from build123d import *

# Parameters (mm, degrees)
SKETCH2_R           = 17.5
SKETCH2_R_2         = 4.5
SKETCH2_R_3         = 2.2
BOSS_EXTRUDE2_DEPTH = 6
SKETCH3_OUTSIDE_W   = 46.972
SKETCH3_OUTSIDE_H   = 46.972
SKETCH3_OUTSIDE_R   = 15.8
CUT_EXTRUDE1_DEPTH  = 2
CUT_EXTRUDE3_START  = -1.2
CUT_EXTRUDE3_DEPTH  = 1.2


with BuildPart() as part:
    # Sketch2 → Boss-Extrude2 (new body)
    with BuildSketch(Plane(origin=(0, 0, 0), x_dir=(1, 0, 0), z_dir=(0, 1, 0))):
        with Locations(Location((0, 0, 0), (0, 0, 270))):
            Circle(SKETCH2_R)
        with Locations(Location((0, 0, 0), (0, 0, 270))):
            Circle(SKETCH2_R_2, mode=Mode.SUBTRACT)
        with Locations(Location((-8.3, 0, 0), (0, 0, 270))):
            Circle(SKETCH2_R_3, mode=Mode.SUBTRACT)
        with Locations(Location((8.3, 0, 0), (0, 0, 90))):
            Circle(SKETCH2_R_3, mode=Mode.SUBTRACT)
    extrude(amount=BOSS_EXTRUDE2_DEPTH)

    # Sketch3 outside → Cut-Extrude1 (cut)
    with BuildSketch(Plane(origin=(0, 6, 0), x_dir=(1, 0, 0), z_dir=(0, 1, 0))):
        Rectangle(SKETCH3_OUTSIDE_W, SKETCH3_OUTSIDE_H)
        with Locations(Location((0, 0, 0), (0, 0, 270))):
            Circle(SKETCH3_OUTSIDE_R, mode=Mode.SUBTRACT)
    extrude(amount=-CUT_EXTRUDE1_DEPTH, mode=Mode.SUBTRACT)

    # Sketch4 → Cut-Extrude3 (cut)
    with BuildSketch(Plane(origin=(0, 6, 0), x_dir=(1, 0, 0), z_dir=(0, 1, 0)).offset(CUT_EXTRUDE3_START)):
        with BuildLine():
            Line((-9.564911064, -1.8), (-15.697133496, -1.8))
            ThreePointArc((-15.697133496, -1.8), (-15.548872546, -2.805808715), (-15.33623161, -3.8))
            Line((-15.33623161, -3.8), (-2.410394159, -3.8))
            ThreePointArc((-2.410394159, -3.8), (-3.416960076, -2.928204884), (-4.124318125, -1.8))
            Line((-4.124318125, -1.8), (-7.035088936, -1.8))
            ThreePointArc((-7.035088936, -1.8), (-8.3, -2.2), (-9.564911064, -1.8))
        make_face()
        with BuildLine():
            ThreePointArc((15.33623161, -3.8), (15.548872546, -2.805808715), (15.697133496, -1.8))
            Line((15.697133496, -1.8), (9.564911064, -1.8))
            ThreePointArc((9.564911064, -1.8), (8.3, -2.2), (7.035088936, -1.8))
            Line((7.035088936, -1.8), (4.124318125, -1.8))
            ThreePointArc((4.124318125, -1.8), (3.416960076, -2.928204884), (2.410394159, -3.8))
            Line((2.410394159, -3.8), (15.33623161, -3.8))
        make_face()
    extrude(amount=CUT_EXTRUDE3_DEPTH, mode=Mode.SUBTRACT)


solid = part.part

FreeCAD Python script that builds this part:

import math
import FreeCAD as App
import Part
import Sketcher


def add_polygon(sketch, points):
    """Adds a closed chain of lines whose ends are joined by coincident constraints."""
    first, n = sketch.GeometryCount, len(points)
    for a, b in zip(points, points[1:] + points[:1]):
        sketch.addGeometry(Part.LineSegment(App.Vector(*a, 0), App.Vector(*b, 0)), False)
    for i in range(n):
        sketch.addConstraint(Sketcher.Constraint("Coincident", first + i, 2, first + (i + 1) % n, 1))

doc = App.newDocument("Part")
body = doc.addObject("PartDesign::Body", "Body")

sketch1 = body.newObject("Sketcher::SketchObject", "Sketch")
sketch1.AttachmentSupport = (doc.getObject("XZ_Plane"), [""])
sketch1.MapMode = "FlatFace"
sketch1.addGeometry([
    Part.Circle(App.Vector(0, 0, 0), App.Vector(0, 0, 1), 17.5),
    Part.Circle(App.Vector(-8.3, 0, 0), App.Vector(0, 0, 1), 2.2),
    Part.Circle(App.Vector(8.3, 0, 0), App.Vector(0, 0, 1), 2.2),
    Part.Circle(App.Vector(0, 0, 0), App.Vector(0, 0, 1), 4.5),
], False)
sketch1.addConstraint([
    Sketcher.Constraint("Coincident", 0, 3, -1, 1),
    Sketcher.Constraint("Coincident", 3, 3, -1, 1),
    Sketcher.Constraint("Equal", 1, 2),
    Sketcher.Constraint("Symmetric", 1, 3, 2, 3, -1, 1),
    Sketcher.Constraint("PointOnObject", 1, 3, -1),
    Sketcher.Constraint("Diameter", 0, 35.0),
    Sketcher.Constraint("Diameter", 3, 9.0),
    Sketcher.Constraint("Diameter", 1, 4.4),
    Sketcher.Constraint("DistanceX", 1, 3, -1, 1, 8.3),
])
pad1 = body.newObject("PartDesign::Pad", "Pad")
pad1.Profile = sketch1
pad1.Length = 6
pad1.Reversed = True

sketch2 = body.newObject("Sketcher::SketchObject", "Sketch001")
sketch2.AttachmentSupport = (doc.getObject("XZ_Plane"), [""])
sketch2.MapMode = "FlatFace"
sketch2.AttachmentOffset = App.Placement(App.Vector(0, 0, -6), App.Rotation())
add_polygon(sketch2, [(-23, -23), (-23, 23), (23, 23), (23, -23)])
sketch2.addGeometry(Part.Circle(App.Vector(0, 0, 0), App.Vector(0, 0, 1), 16), False)
sketch2.addConstraint([
    Sketcher.Constraint("Vertical", 0),
    Sketcher.Constraint("Horizontal", 1),
    Sketcher.Constraint("Vertical", 2),
    Sketcher.Constraint("Horizontal", 3),
    Sketcher.Constraint("Coincident", 4, 3, -1, 1),
    Sketcher.Constraint("Symmetric", 0, 2, 2, 2, -1, 1),
    Sketcher.Constraint("Equal", 3, 0),
    Sketcher.Constraint("Diameter", 4, 31.6),
    Sketcher.Constraint("DistanceX", 1, 1, 1, 2, 46.972),
])
pocket1 = body.newObject("PartDesign::Pocket", "Pocket")
pocket1.Profile = sketch2
pocket1.Length = 2
pocket1.Reversed = True

sketch3 = body.newObject("Sketcher::SketchObject", "Sketch002")
sketch3.AttachmentSupport = (doc.getObject("XZ_Plane"), [""])
sketch3.MapMode = "FlatFace"
sketch3.AttachmentOffset = App.Placement(App.Vector(0, 0, -4.8), App.Rotation())
sketch3.addGeometry([
    Part.LineSegment(App.Vector(-9.6, 1.8, 0), App.Vector(-15.7, 1.8, 0)),
    Part.ArcOfCircle(Part.Circle(App.Vector(0, 0, 0), App.Vector(0, 0, 1), 15.8), math.radians(166.08), math.radians(173.46)),
    Part.LineSegment(App.Vector(-15.3, 3.8, 0), App.Vector(-2.4, 3.8, 0)),
    Part.ArcOfCircle(Part.Circle(App.Vector(0, 0, 0), App.Vector(0, 0, 1), 4.5), math.radians(122), math.radians(156)),
    Part.LineSegment(App.Vector(-4.1, 1.8, 0), App.Vector(-7, 1.8, 0)),
    Part.ArcOfCircle(Part.Circle(App.Vector(-8.3, 0, 0), App.Vector(0, 0, 1), 2.2), math.radians(55), math.radians(125)),
    Part.ArcOfCircle(Part.Circle(App.Vector(0, 0, 0), App.Vector(0, 0, 1), 15.8), math.radians(6.54), math.radians(13.92)),
    Part.LineSegment(App.Vector(15.7, 1.8, 0), App.Vector(9.6, 1.8, 0)),
    Part.ArcOfCircle(Part.Circle(App.Vector(8.3, 0, 0), App.Vector(0, 0, 1), 2.2), math.radians(55), math.radians(125)),
    Part.LineSegment(App.Vector(7, 1.8, 0), App.Vector(4.1, 1.8, 0)),
    Part.ArcOfCircle(Part.Circle(App.Vector(0, 0, 0), App.Vector(0, 0, 1), 4.5), math.radians(24), math.radians(58)),
    Part.LineSegment(App.Vector(2.4, 3.8, 0), App.Vector(15.3, 3.8, 0)),
], False)
sketch3.addConstraint([
    Sketcher.Constraint("Coincident", 0, 2, 1, 2),
    Sketcher.Constraint("Coincident", 1, 1, 2, 1),
    Sketcher.Constraint("Coincident", 2, 2, 3, 1),
    Sketcher.Constraint("Coincident", 3, 2, 4, 1),
    Sketcher.Constraint("Coincident", 4, 2, 5, 1),
    Sketcher.Constraint("Coincident", 5, 2, 0, 1),
    Sketcher.Constraint("Coincident", 6, 1, 7, 1),
    Sketcher.Constraint("Coincident", 7, 2, 8, 1),
    Sketcher.Constraint("Coincident", 8, 2, 9, 1),
    Sketcher.Constraint("Coincident", 9, 2, 10, 1),
    Sketcher.Constraint("Coincident", 10, 2, 11, 1),
    Sketcher.Constraint("Coincident", 11, 2, 6, 2),
    Sketcher.Constraint("Horizontal", 0),
    Sketcher.Constraint("Horizontal", 2),
    Sketcher.Constraint("Horizontal", 4),
    Sketcher.Constraint("Horizontal", 7),
    Sketcher.Constraint("Horizontal", 9),
    Sketcher.Constraint("Horizontal", 11),
    Sketcher.Constraint("Coincident", 1, 3, -1, 1),
    Sketcher.Constraint("Coincident", 3, 3, -1, 1),
    Sketcher.Constraint("Coincident", 6, 3, -1, 1),
    Sketcher.Constraint("Coincident", 10, 3, -1, 1),
    Sketcher.Constraint("Equal", 1, 6),
    Sketcher.Constraint("Equal", 5, 8),
    Sketcher.Constraint("Equal", 3, 10),
    Sketcher.Constraint("Symmetric", 5, 3, 8, 3, -1, 1),
    Sketcher.Constraint("Symmetric", 5, 2, 7, 2, -2),
    Sketcher.Constraint("Horizontal", 0, 2, 3, 2),
    Sketcher.Constraint("Horizontal", 7, 2, 8, 2),
    Sketcher.Constraint("Horizontal", 2, 2, 10, 2),
    Sketcher.Constraint("Radius", 1, 15.8),
    Sketcher.Constraint("Radius", 3, 4.5),
    Sketcher.Constraint("Radius", 5, 2.2),
    Sketcher.Constraint("DistanceY", 0, 2, 1, 1, 2.0),
    Sketcher.Constraint("DistanceX", 5, 3, -1, 1, 8.3),
    Sketcher.Constraint("DistanceY", -1, 1, 0, 2, 1.8),
])
pocket2 = body.newObject("PartDesign::Pocket", "Pocket001")
pocket2.Profile = sketch3
pocket2.Length = 1.2

doc.recompute()
